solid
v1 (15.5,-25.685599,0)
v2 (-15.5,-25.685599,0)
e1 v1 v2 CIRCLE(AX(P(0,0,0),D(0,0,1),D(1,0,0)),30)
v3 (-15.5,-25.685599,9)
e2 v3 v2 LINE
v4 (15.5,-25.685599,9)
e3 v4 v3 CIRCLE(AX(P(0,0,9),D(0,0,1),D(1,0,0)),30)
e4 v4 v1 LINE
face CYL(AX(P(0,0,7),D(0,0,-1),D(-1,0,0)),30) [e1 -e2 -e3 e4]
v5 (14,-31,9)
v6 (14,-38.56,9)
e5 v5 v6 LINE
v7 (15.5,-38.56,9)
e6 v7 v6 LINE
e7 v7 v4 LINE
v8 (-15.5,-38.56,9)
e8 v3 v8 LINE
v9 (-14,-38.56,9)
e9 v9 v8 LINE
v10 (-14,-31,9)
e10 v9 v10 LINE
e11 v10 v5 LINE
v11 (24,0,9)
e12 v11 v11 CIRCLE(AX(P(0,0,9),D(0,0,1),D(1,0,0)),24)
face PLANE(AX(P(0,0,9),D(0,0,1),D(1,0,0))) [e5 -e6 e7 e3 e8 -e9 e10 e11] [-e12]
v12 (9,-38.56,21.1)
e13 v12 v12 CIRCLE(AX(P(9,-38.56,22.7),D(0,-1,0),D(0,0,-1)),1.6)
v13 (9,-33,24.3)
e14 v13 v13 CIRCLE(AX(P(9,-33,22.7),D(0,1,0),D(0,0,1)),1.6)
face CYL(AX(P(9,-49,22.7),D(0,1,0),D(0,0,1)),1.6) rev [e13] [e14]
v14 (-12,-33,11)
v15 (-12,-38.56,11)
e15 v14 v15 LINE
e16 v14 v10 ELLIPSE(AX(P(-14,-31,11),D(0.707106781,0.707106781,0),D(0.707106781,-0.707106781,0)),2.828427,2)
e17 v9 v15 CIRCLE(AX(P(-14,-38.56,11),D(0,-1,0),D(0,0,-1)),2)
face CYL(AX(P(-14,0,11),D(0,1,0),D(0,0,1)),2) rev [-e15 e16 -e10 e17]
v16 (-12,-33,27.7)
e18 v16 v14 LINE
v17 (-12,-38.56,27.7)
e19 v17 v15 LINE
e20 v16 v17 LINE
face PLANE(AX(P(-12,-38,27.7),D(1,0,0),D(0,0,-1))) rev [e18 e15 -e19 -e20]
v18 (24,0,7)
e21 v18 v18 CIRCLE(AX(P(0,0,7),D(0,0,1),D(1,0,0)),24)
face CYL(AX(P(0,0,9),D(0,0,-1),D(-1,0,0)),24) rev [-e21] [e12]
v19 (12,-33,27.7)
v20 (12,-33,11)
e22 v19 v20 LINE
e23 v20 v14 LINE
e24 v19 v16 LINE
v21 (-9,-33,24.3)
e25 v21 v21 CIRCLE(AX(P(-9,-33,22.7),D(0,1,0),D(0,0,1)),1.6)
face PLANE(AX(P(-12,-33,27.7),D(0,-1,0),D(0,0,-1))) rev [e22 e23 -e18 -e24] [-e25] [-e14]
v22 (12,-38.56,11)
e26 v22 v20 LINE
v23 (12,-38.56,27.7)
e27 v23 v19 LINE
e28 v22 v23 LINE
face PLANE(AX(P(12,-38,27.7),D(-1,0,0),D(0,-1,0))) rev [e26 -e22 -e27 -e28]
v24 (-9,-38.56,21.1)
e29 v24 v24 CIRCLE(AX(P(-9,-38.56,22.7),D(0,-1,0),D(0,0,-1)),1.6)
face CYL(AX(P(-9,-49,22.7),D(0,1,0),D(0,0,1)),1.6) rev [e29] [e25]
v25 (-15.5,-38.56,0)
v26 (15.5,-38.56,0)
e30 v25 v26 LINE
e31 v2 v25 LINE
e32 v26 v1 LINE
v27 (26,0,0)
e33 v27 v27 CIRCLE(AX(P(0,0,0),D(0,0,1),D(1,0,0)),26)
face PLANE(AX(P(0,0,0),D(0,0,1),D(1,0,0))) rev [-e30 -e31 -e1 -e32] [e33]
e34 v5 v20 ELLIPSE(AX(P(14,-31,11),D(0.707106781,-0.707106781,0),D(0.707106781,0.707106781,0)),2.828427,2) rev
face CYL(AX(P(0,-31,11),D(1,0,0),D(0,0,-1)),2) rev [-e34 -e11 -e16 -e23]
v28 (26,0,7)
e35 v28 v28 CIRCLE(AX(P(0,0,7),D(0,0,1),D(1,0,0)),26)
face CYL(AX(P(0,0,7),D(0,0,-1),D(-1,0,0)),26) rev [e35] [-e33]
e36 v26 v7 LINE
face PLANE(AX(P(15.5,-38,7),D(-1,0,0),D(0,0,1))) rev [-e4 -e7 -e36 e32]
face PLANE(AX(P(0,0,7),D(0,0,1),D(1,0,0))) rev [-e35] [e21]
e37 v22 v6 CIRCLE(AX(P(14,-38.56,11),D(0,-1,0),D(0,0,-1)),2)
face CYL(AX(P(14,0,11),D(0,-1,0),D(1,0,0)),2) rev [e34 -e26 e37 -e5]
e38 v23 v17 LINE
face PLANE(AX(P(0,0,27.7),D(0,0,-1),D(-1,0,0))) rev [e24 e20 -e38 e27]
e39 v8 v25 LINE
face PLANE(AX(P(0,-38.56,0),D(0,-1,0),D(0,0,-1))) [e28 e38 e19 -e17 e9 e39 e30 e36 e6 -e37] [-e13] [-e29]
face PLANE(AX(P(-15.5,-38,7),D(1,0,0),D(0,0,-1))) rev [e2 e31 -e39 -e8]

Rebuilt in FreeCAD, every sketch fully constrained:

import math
import FreeCAD as App
import Part
import Sketcher
from FreeCAD import Vector
Q = App.Units.Quantity


def edges_at(feature, points):
    """Names of the edges that pass closest to the given points."""
    edges = feature.Shape.Edges
    near = lambda p: min(range(len(edges)), key=lambda i: edges[i].distToShape(Part.Vertex(*p))[0])
    return sorted({f"Edge{near(p) + 1}" for p in points})

doc = App.newDocument("Part")
body = doc.addObject("PartDesign::Body", "Body")

# Sketch on XY plane
sketch1 = body.newObject("Sketcher::SketchObject", "Sketch")
sketch1.AttachmentSupport = (doc.getObject("XY_Plane"), [""])
sketch1.MapMode = "FlatFace"
sketch1.addGeometry(Part.LineSegment(Vector(-16, -38, 0), Vector(16, -38, 0)), False)
sketch1.addGeometry(Part.LineSegment(Vector(16, -38, 0), Vector(16, -26, 0)), False)
sketch1.addGeometry(Part.ArcOfCircle(Part.Circle(Vector(0, 0, 0), Vector(0, 0, 1), 30), math.radians(-59), math.radians(239)), False)
sketch1.addGeometry(Part.LineSegment(Vector(-16, -26, 0), Vector(-16, -38, 0)), False)
sketch1.addGeometry(Part.Circle(Vector(0, 0, 0), Vector(0, 0, 1), 26), False)
sketch1.addConstraint(Sketcher.Constraint("Coincident", 0, 2, 1, 1))
sketch1.addConstraint(Sketcher.Constraint("Coincident", 1, 2, 2, 1))
sketch1.addConstraint(Sketcher.Constraint("Coincident", 2, 2, 3, 1))
sketch1.addConstraint(Sketcher.Constraint("Coincident", 3, 2, 0, 1))
sketch1.addConstraint(Sketcher.Constraint("Horizontal", 0))
sketch1.addConstraint(Sketcher.Constraint("Vertical", 1))
sketch1.addConstraint(Sketcher.Constraint("Vertical", 3))
sketch1.addConstraint(Sketcher.Constraint("Coincident", 2, 3, -1, 1))
sketch1.addConstraint(Sketcher.Constraint("Coincident", 4, 3, -1, 1))
sketch1.addConstraint(Sketcher.Constraint("Horizontal", 1, 2, 2, 2))
sketch1.addConstraint(Sketcher.Constraint("Diameter", 4, Q("52 mm")))
sketch1.addConstraint(Sketcher.Constraint("Radius", 2, Q("30 mm")))
sketch1.addConstraint(Sketcher.Constraint("DistanceX", 0, 1, 0, 2, Q("31 mm")))
sketch1.addConstraint(Sketcher.Constraint("DistanceY", 0, 2, -1, 1, Q("38 mm")))
pad1 = body.newObject("PartDesign::Pad", "Pad")
pad1.Profile = sketch1
pad1.Length = 7

# Sketch on XY plane
sketch2 = body.newObject("Sketcher::SketchObject", "Sketch001")
sketch2.AttachmentSupport = (doc.getObject("XY_Plane"), [""])
sketch2.MapMode = "FlatFace"
sketch2.AttachmentOffset = App.Placement(Vector(0, 0, 7), App.Rotation())
sketch2.addGeometry(Part.Circle(Vector(0, 0, 0), Vector(0, 0, 1), 30), False)
sketch2.addGeometry(Part.Circle(Vector(0, 0, 0), Vector(0, 0, 1), 24), False)
sketch2.addConstraint(Sketcher.Constraint("Coincident", 0, 3, -1, 1))
sketch2.addConstraint(Sketcher.Constraint("Coincident", 1, 3, -1, 1))
sketch2.addConstraint(Sketcher.Constraint("Diameter", 0, Q("60 mm")))
sketch2.addConstraint(Sketcher.Constraint("Diameter", 1, Q("48 mm")))
pad2 = body.newObject("PartDesign::Pad", "Pad001")
pad2.Profile = sketch2
pad2.Length = 2

# Sketch on XY plane
sketch3 = body.newObject("Sketcher::SketchObject", "Sketch002")
sketch3.AttachmentSupport = (doc.getObject("XY_Plane"), [""])
sketch3.MapMode = "FlatFace"
sketch3.AttachmentOffset = App.Placement(Vector(0, 0, 7), App.Rotation())
sketch3.addGeometry(Part.LineSegment(Vector(-12, -33, 0), Vector(-12, -38, 0)), False)
sketch3.addGeometry(Part.LineSegment(Vector(-12, -38, 0), Vector(12, -38, 0)), False)
sketch3.addGeometry(Part.LineSegment(Vector(12, -38, 0), Vector(12, -33, 0)), False)
sketch3.addGeometry(Part.LineSegment(Vector(12, -33, 0), Vector(-12, -33, 0)), False)
sketch3.addConstraint(Sketcher.Constraint("Coincident", 0, 2, 1, 1))
sketch3.addConstraint(Sketcher.Constraint("Coincident", 1, 2, 2, 1))
sketch3.addConstraint(Sketcher.Constraint("Coincident", 2, 2, 3, 1))
sketch3.addConstraint(Sketcher.Constraint("Coincident", 3, 2, 0, 1))
sketch3.addConstraint(Sketcher.Constraint("Vertical", 0))
sketch3.addConstraint(Sketcher.Constraint("Horizontal", 1))
sketch3.addConstraint(Sketcher.Constraint("Vertical", 2))
sketch3.addConstraint(Sketcher.Constraint("Horizontal", 3))
sketch3.addConstraint(Sketcher.Constraint("DistanceX", 1, 1, 1, 2, Q("24 mm")))
sketch3.addConstraint(Sketcher.Constraint("DistanceY", 0, 2, 0, 1, Q("5 mm")))
sketch3.addConstraint(Sketcher.Constraint("DistanceX", 0, 2, -1, 1, Q("12 mm")))
sketch3.addConstraint(Sketcher.Constraint("DistanceY", 0, 2, -1, 1, Q("38 mm")))
pad3 = body.newObject("PartDesign::Pad", "Pad002")
pad3.Profile = sketch3
pad3.Length = 20.7

# Sketch on XY plane
sketch4 = body.newObject("Sketcher::SketchObject", "Sketch003")
sketch4.AttachmentSupport = (doc.getObject("XY_Plane"), [""])
sketch4.MapMode = "FlatFace"
sketch4.AttachmentOffset = App.Placement(Vector(0, 0, 7), App.Rotation())
sketch4.addGeometry(Part.LineSegment(Vector(-15.5, -25.7, 0), Vector(-15.5, -38, 0)), False)
sketch4.addGeometry(Part.LineSegment(Vector(-15.5, -38, 0), Vector(-12, -38, 0)), False)
sketch4.addGeometry(Part.LineSegment(Vector(-12, -38, 0), Vector(-12, -33, 0)), False)
sketch4.addGeometry(Part.LineSegment(Vector(-12, -33, 0), Vector(12, -33, 0)), False)
sketch4.addGeometry(Part.LineSegment(Vector(12, -33, 0), Vector(12, -38, 0)), False)
sketch4.addGeometry(Part.LineSegment(Vector(12, -38, 0), Vector(15.5, -38, 0)), False)
sketch4.addGeometry(Part.LineSegment(Vector(15.5, -38, 0), Vector(15.5, -25.7, 0)), False)
sketch4.addGeometry(Part.ArcOfCircle(Part.Circle(Vector(0, 0, 0), Vector(0, 0, 1), 30), math.radians(-121), math.radians(-59)), False)
sketch4.addConstraint(Sketcher.Constraint("Coincident", 0, 2, 1, 1))
sketch4.addConstraint(Sketcher.Constraint("Coincident", 1, 2, 2, 1))
sketch4.addConstraint(Sketcher.Constraint("Coincident", 2, 2, 3, 1))
sketch4.addConstraint(Sketcher.Constraint("Coincident", 3, 2, 4, 1))
sketch4.addConstraint(Sketcher.Constraint("Coincident", 4, 2, 5, 1))
sketch4.addConstraint(Sketcher.Constraint("Coincident", 5, 2, 6, 1))
sketch4.addConstraint(Sketcher.Constraint("Coincident", 6, 2, 7, 2))
sketch4.addConstraint(Sketcher.Constraint("Coincident", 7, 1, 0, 1))
sketch4.addConstraint(Sketcher.Constraint("Vertical", 0))
sketch4.addConstraint(Sketcher.Constraint("Horizontal", 1))
sketch4.addConstraint(Sketcher.Constraint("Vertical", 2))
sketch4.addConstraint(Sketcher.Constraint("Horizontal", 3))
sketch4.addConstraint(Sketcher.Constraint("Vertical", 4))
sketch4.addConstraint(Sketcher.Constraint("Horizontal", 5))
sketch4.addConstraint(Sketcher.Constraint("Vertical", 6))
sketch4.addConstraint(Sketcher.Constraint("Coincident", 7, 3, -1, 1))
sketch4.addConstraint(Sketcher.Constraint("Symmetric", 1, 2, 4, 2, -2))
sketch4.addConstraint(Sketcher.Constraint("Horizontal", 6, 2, 7, 1))
sketch4.addConstraint(Sketcher.Constraint("Radius", 7, Q("30 mm")))
sketch4.addConstraint(Sketcher.Constraint("DistanceX", 3, 1, 3, 2, Q("24 mm")))
sketch4.addConstraint(Sketcher.Constraint("DistanceY", 2, 1, 2, 2, Q("5 mm")))
sketch4.addConstraint(Sketcher.Constraint("DistanceX", 1, 1, 1, 2, Q("3.5 mm")))
sketch4.addConstraint(Sketcher.Constraint("DistanceY", 0, 2, -1, 1, Q("38 mm")))
pad4 = body.newObject("PartDesign::Pad", "Pad003")
pad4.Profile = sketch4
pad4.Length = 2

# Sketch on XZ plane
sketch5 = body.newObject("Sketcher::SketchObject", "Sketch004")
sketch5.AttachmentSupport = (doc.getObject("XZ_Plane"), [""])
sketch5.MapMode = "FlatFace"
sketch5.AttachmentOffset = App.Placement(Vector(0, 0, 38), App.Rotation())
sketch5.addGeometry(Part.LineSegment(Vector(15.5, 0, 0), Vector(15.5, 9, 0)), False)
sketch5.addGeometry(Part.LineSegment(Vector(15.5, 9, 0), Vector(12, 9, 0)), False)
sketch5.addGeometry(Part.LineSegment(Vector(12, 9, 0), Vector(12, 27.7, 0)), False)
sketch5.addGeometry(Part.LineSegment(Vector(12, 27.7, 0), Vector(-12, 27.7, 0)), False)
sketch5.addGeometry(Part.LineSegment(Vector(-12, 27.7, 0), Vector(-12, 9, 0)), False)
sketch5.addGeometry(Part.LineSegment(Vector(-12, 9, 0), Vector(-15.5, 9, 0)), False)
sketch5.addGeometry(Part.LineSegment(Vector(-15.5, 9, 0), Vector(-15.5, 0, 0)), False)
sketch5.addGeometry(Part.LineSegment(Vector(-15.5, 0, 0), Vector(15.5, 0, 0)), False)
sketch5.addConstraint(Sketcher.Constraint("Coincident", 0, 2, 1, 1))
sketch5.addConstraint(Sketcher.Constraint("Coincident", 1, 2, 2, 1))
sketch5.addConstraint(Sketcher.Constraint("Coincident", 2, 2, 3, 1))
sketch5.addConstraint(Sketcher.Constraint("Coincident", 3, 2, 4, 1))
sketch5.addConstraint(Sketcher.Constraint("Coincident", 4, 2, 5, 1))
sketch5.addConstraint(Sketcher.Constraint("Coincident", 5, 2, 6, 1))
sketch5.addConstraint(Sketcher.Constraint("Coincident", 6, 2, 7, 1))
sketch5.addConstraint(Sketcher.Constraint("Coincident", 7, 2, 0, 1))
sketch5.addConstraint(Sketcher.Constraint("Vertical", 0))
sketch5.addConstraint(Sketcher.Constraint("Horizontal", 1))
sketch5.addConstraint(Sketcher.Constraint("Vertical", 2))
sketch5.addConstraint(Sketcher.Constraint("Horizontal", 3))
sketch5.addConstraint(Sketcher.Constraint("Vertical", 4))
sketch5.addConstraint(Sketcher.Constraint("Horizontal", 5))
sketch5.addConstraint(Sketcher.Constraint("Vertical", 6))
sketch5.addConstraint(Sketcher.Constraint("Horizontal", 7))
sketch5.addConstraint(Sketcher.Constraint("Symmetric", 6, 2, 7, 2, -1, 1))
sketch5.addConstraint(Sketcher.Constraint("Symmetric", 1, 2, 4, 2, -2))
sketch5.addConstraint(Sketcher.Constraint("DistanceX", 3, 2, 3, 1, Q("24 mm")))
sketch5.addConstraint(Sketcher.Constraint("DistanceX", 7, 1, 7, 2, Q("31 mm")))
sketch5.addConstraint(Sketcher.Constraint("DistanceY", 0, 1, 0, 2, Q("9 mm")))
sketch5.addConstraint(Sketcher.Constraint("DistanceY", 2, 1, 2, 2, Q("18.7 mm")))
pad5 = body.newObject("PartDesign::Pad", "Pad004")
pad5.Profile = sketch5
pad5.Length = 0.56

# Sketch on XZ plane
sketch6 = body.newObject("Sketcher::SketchObject", "Sketch005")
sketch6.AttachmentSupport = (doc.getObject("XZ_Plane"), [""])
sketch6.MapMode = "FlatFace"
sketch6.AttachmentOffset = App.Placement(Vector(0, 0, 33), App.Rotation())
sketch6.addGeometry(Part.Circle(Vector(9, 22.7, 0), Vector(0, 0, 1), 1.6), False)
sketch6.addGeometry(Part.Circle(Vector(-9, 22.7, 0), Vector(0, 0, 1), 1.6), False)
sketch6.addConstraint(Sketcher.Constraint("Equal", 0, 1))
sketch6.addConstraint(Sketcher.Constraint("Symmetric", 0, 3, 1, 3, -2))
sketch6.addConstraint(Sketcher.Constraint("Diameter", 0, Q("3.2 mm")))
sketch6.addConstraint(Sketcher.Constraint("DistanceX", -1, 1, 0, 3, Q("9 mm")))
sketch6.addConstraint(Sketcher.Constraint("DistanceY", -1, 1, 0, 3, Q("22.7 mm")))
pocket1 = body.newObject("PartDesign::Pocket", "Pocket")
pocket1.Profile = sketch6
pocket1.Length = 16
pocket1.Reversed = True
doc.recompute()

fillet = body.newObject("PartDesign::Fillet", "Fillet")
fillet.Base = (pocket1, edges_at(pocket1, [(0, -33, 9)]))
fillet.Radius = 2
doc.recompute()

fillet2 = body.newObject("PartDesign::Fillet", "Fillet001")
fillet2.Base = (fillet, edges_at(fillet, [(12, -34.78, 9)]))
fillet2.Radius = 2
doc.recompute()

fillet3 = body.newObject("PartDesign::Fillet", "Fillet002")
fillet3.Base = (fillet2, edges_at(fillet2, [(-12, -34.78, 9)]))
fillet3.Radius = 2

doc.recompute()
